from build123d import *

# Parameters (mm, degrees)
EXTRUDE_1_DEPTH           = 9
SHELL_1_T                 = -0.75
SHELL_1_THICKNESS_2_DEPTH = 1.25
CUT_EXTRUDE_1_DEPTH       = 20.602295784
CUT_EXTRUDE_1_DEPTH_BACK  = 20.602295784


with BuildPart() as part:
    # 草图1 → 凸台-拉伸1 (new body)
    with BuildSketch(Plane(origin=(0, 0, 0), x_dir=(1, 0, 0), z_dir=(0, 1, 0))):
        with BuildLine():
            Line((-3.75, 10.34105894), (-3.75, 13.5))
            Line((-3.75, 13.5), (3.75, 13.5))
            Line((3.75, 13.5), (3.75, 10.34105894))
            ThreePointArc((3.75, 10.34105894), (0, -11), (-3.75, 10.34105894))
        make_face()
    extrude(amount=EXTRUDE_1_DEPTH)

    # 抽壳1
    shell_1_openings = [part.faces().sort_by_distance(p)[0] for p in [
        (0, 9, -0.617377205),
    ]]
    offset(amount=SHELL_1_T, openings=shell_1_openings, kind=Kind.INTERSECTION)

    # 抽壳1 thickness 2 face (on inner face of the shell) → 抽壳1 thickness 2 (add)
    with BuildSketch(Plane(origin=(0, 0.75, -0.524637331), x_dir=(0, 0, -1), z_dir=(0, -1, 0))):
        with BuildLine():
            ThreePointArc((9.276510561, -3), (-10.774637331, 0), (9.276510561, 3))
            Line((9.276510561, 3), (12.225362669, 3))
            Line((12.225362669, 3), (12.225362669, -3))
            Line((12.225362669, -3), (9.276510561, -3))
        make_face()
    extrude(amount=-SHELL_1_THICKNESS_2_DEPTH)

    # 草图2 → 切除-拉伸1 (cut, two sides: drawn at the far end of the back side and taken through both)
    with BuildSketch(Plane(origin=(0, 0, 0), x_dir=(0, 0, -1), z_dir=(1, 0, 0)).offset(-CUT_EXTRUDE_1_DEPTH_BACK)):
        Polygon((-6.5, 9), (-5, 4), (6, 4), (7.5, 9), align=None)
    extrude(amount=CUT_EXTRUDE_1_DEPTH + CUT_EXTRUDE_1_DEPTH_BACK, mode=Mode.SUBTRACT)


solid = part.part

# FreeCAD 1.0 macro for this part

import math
import FreeCAD as App
import Part
import Sketcher
from FreeCAD import Vector
Q = App.Units.Quantity


def faces_at(feature, points):
    """Names of the faces that lie closest to the given points."""
    faces = feature.Shape.Faces
    near = lambda p: min(range(len(faces)), key=lambda i: faces[i].distToShape(Part.Vertex(*p))[0])
    return sorted({f"Face{near(p) + 1}" for p in points})

doc = App.newDocument("Part")
body = doc.addObject("PartDesign::Body", "Body")

# Sketch on XZ plane
sketch1 = body.newObject("Sketcher::SketchObject", "Sketch")
sketch1.AttachmentSupport = (doc.getObject("XZ_Plane"), [""])
sketch1.MapMode = "FlatFace"
sketch1.addGeometry([
    Part.LineSegment(Vector(-3.75, -13.5, 0), Vector(-3.75, -10.341059, 0)),
    Part.ArcOfCircle(Part.Circle(Vector(0, 0, 0), Vector(0, 0, 1), 11), math.radians(-70.06773), math.radians(250.06773)),
    Part.LineSegment(Vector(3.75, -10.341059, 0), Vector(3.75, -13.5, 0)),
    Part.LineSegment(Vector(3.75, -13.5, 0), Vector(-3.75, -13.5, 0)),
], False)
sketch1.addConstraint([
    Sketcher.Constraint("Coincident", 0, 2, 1, 2),
    Sketcher.Constraint("Coincident", 1, 1, 2, 1),
    Sketcher.Constraint("Coincident", 2, 2, 3, 1),
    Sketcher.Constraint("Coincident", 3, 2, 0, 1),
    Sketcher.Constraint("Vertical", 0),
    Sketcher.Constraint("Vertical", 2),
    Sketcher.Constraint("Horizontal", 3),
    Sketcher.Constraint("Coincident", 1, 3, -1, 1),
    Sketcher.Constraint("Horizontal", 0, 2, 1, 1),
    Sketcher.Constraint("Radius", 1, Q("11 mm")),
    Sketcher.Constraint("DistanceX", 3, 2, 3, 1, Q("7.5 mm")),
    Sketcher.Constraint("DistanceY", 2, 2, -1, 1, Q("13.5 mm")),
])
pad1 = body.newObject("PartDesign::Pad", "Pad")
pad1.Profile = sketch1
pad1.Length = 9
pad1.Reversed = True
doc.recompute()

thickness = body.newObject("PartDesign::Thickness", "Thickness")
thickness.Base = (pad1, faces_at(pad1, [(0, 9, -1.25)]))
thickness.Value = 0.75
thickness.Reversed = True
thickness.Join = "Intersection"

# Sketch on XZ plane
sketch2 = body.newObject("Sketcher::SketchObject", "Sketch001")
sketch2.AttachmentSupport = (doc.getObject("XZ_Plane"), [""])
sketch2.MapMode = "FlatFace"
sketch2.AttachmentOffset = App.Placement(Vector(0, 0, -0.75), App.Rotation())
sketch2.addGeometry([
    Part.ArcOfCircle(Part.Circle(Vector(0, 0, 0), Vector(0, 0, 1), 10.25), math.radians(-72.981353), math.radians(252.981353)),
    Part.LineSegment(Vector(-3, -9.801148, 0), Vector(-3, -12.75, 0)),
    Part.LineSegment(Vector(-3, -12.75, 0), Vector(3, -12.75, 0)),
    Part.LineSegment(Vector(3, -12.75, 0), Vector(3, -9.801148, 0)),
], False)
sketch2.addConstraint([
    Sketcher.Constraint("Coincident", 0, 2, 1, 1),
    Sketcher.Constraint("Coincident", 1, 2, 2, 1),
    Sketcher.Constraint("Coincident", 2, 2, 3, 1),
    Sketcher.Constraint("Coincident", 3, 2, 0, 1),
    Sketcher.Constraint("Vertical", 1),
    Sketcher.Constraint("Horizontal", 2),
    Sketcher.Constraint("Vertical", 3),
    Sketcher.Constraint("Coincident", 0, 3, -1, 1),
    Sketcher.Constraint("Horizontal", 0, 2, 3, 2),
    Sketcher.Constraint("DistanceX", 2, 1, 2, 2, Q("6 mm")),
    Sketcher.Constraint("Radius", 0, Q("10.25 mm")),
    Sketcher.Constraint("DistanceY", 1, 2, -1, 1, Q("12.75 mm")),
])
pad2 = body.newObject("PartDesign::Pad", "Pad001")
pad2.Profile = sketch2
pad2.Length = 1.25
pad2.Reversed = True

# Sketch on YZ plane
sketch3 = body.newObject("Sketcher::SketchObject", "Sketch002")
sketch3.AttachmentSupport = (doc.getObject("YZ_Plane"), [""])
sketch3.MapMode = "FlatFace"
sketch3.addGeometry([
    Part.LineSegment(Vector(9, 6.5, 0), Vector(4, 5, 0)),
    Part.LineSegment(Vector(4, 5, 0), Vector(4, -6, 0)),
    Part.LineSegment(Vector(4, -6, 0), Vector(9, -7.5, 0)),
    Part.LineSegment(Vector(9, -7.5, 0), Vector(9, 6.5, 0)),
], False)
sketch3.addConstraint([
    Sketcher.Constraint("Coincident", 0, 2, 1, 1),
    Sketcher.Constraint("Coincident", 1, 2, 2, 1),
    Sketcher.Constraint("Coincident", 2, 2, 3, 1),
    Sketcher.Constraint("Coincident", 3, 2, 0, 1),
    Sketcher.Constraint("Vertical", 1),
    Sketcher.Constraint("Vertical", 3),
    Sketcher.Constraint("Equal", 0, 2),
    Sketcher.Constraint("DistanceY", 1, 2, 1, 1, Q("11 mm")),
    Sketcher.Constraint("DistanceY", 3, 1, 3, 2, Q("14 mm")),
    Sketcher.Constraint("DistanceX", -1, 1, 0, 2, Q("4 mm")),
    Sketcher.Constraint("DistanceY", -1, 1, 0, 2, Q("5 mm")),
    Sketcher.Constraint("DistanceX", -1, 1, 2, 2, Q("9 mm")),
])
pocket1 = body.newObject("PartDesign::Pocket", "Pocket")
pocket1.Profile = sketch3
pocket1.Type = "ThroughAll"
pocket1.Midplane = True

doc.recompute()
